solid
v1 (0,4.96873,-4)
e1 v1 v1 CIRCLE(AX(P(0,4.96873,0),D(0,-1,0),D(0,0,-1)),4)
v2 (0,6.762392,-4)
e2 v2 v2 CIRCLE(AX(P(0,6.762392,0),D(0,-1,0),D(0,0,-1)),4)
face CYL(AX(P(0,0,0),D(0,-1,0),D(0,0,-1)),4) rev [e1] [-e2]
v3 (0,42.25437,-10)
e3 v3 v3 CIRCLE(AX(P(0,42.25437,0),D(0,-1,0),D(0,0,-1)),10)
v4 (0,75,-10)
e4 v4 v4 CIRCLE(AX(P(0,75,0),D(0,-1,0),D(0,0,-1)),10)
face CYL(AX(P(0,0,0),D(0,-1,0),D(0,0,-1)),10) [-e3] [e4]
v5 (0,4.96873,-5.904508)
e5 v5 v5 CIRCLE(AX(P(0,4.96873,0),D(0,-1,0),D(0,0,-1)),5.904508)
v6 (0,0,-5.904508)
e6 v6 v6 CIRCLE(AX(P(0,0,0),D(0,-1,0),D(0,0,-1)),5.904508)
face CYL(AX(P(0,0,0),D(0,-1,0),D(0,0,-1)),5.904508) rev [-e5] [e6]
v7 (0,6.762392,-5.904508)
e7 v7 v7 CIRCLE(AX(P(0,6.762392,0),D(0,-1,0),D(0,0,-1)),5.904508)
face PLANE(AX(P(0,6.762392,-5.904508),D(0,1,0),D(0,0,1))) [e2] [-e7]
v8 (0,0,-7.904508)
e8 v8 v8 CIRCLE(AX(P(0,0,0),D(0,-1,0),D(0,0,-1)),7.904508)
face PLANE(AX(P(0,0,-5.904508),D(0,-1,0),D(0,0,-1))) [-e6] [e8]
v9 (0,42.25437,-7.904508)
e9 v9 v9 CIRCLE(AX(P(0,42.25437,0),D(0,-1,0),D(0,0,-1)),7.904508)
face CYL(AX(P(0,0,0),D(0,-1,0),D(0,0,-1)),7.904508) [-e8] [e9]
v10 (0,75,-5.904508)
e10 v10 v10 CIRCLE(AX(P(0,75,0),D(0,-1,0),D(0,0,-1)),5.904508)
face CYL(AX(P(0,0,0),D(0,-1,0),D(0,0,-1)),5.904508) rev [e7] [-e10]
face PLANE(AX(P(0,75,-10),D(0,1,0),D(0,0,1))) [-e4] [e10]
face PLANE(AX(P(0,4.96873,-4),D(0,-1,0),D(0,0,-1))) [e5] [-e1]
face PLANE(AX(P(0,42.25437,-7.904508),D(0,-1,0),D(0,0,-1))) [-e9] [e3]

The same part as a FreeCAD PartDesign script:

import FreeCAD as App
import Part
import Sketcher
Q = App.Units.Quantity

doc = App.newDocument("Part")
body = doc.addObject("PartDesign::Body", "Body")

# Sketch on YZ plane
sketch1 = body.newObject("Sketcher::SketchObject", "Sketch")
sketch1.AttachmentSupport = (doc.getObject("YZ_Plane"), [""])
sketch1.MapMode = "FlatFace"
sketch1.addGeometry([
    Part.LineSegment(App.Vector(0, -5.9, 0), App.Vector(0, -7.9, 0)),  # 0
    Part.LineSegment(App.Vector(0, -7.9, 0), App.Vector(42.3, -7.9, 0)),  # 1
    Part.LineSegment(App.Vector(42.3, -7.9, 0), App.Vector(42.3, -10, 0)),  # 2
    Part.LineSegment(App.Vector(42.3, -10, 0), App.Vector(75, -10, 0)),  # 3
    Part.LineSegment(App.Vector(75, -10, 0), App.Vector(75, -5.9, 0)),  # 4
    Part.LineSegment(App.Vector(75, -5.9, 0), App.Vector(6.8, -5.9, 0)),  # 5
    Part.LineSegment(App.Vector(6.8, -5.9, 0), App.Vector(6.8, -4, 0)),  # 6
    Part.LineSegment(App.Vector(6.8, -4, 0), App.Vector(5, -4, 0)),  # 7
    Part.LineSegment(App.Vector(5, -4, 0), App.Vector(5, -5.9, 0)),  # 8
    Part.LineSegment(App.Vector(5, -5.9, 0), App.Vector(0, -5.9, 0)),  # 9
], False)
sketch1.addConstraint([
    Sketcher.Constraint("Coincident", 0, 2, 1, 1),
    Sketcher.Constraint("Coincident", 1, 2, 2, 1),
    Sketcher.Constraint("Coincident", 2, 2, 3, 1),
    Sketcher.Constraint("Coincident", 3, 2, 4, 1),
    Sketcher.Constraint("Coincident", 4, 2, 5, 1),
    Sketcher.Constraint("Coincident", 5, 2, 6, 1),
    Sketcher.Constraint("Coincident", 6, 2, 7, 1),
    Sketcher.Constraint("Coincident", 7, 2, 8, 1),
    Sketcher.Constraint("Coincident", 8, 2, 9, 1),
    Sketcher.Constraint("Coincident", 9, 2, 0, 1),
    Sketcher.Constraint("Vertical", 0),
    Sketcher.Constraint("Horizontal", 1),
    Sketcher.Constraint("Vertical", 2),
    Sketcher.Constraint("Horizontal", 3),
    Sketcher.Constraint("Vertical", 4),
    Sketcher.Constraint("Horizontal", 5),
    Sketcher.Constraint("Vertical", 6),
    Sketcher.Constraint("Horizontal", 7),
    Sketcher.Constraint("Vertical", 8),
    Sketcher.Constraint("Horizontal", 9),
    Sketcher.Constraint("PointOnObject", 0, 2, -2),
    Sketcher.Constraint("Horizontal", 5, 2, 8, 2),
    Sketcher.Constraint("DistanceY", 0, 2, 0, 1, Q("2 mm")),
    Sketcher.Constraint("DistanceY", 2, 2, -1, 1, Q("10 mm")),
    Sketcher.Constraint("DistanceX", -1, 1, 3, 2, Q("75 mm")),
    Sketcher.Constraint("DistanceY", 6, 2, -1, 1, Q("4 mm")),
    Sketcher.Constraint("DistanceX", 1, 1, 1, 2, Q("42.25437 mm")),
    Sketcher.Constraint("DistanceX", 5, 2, 5, 1, Q("68.237608 mm")),
    Sketcher.Constraint("DistanceX", 9, 2, 9, 1, Q("4.96873 mm")),
    Sketcher.Constraint("DistanceY", 2, 2, 2, 1, Q("2.095492 mm")),
])
revolution = body.newObject("PartDesign::Revolution", "Revolution")
revolution.Profile = sketch1
revolution.ReferenceAxis = (sketch1, ["H_Axis"])
revolution.Angle = 360

doc.recompute()
